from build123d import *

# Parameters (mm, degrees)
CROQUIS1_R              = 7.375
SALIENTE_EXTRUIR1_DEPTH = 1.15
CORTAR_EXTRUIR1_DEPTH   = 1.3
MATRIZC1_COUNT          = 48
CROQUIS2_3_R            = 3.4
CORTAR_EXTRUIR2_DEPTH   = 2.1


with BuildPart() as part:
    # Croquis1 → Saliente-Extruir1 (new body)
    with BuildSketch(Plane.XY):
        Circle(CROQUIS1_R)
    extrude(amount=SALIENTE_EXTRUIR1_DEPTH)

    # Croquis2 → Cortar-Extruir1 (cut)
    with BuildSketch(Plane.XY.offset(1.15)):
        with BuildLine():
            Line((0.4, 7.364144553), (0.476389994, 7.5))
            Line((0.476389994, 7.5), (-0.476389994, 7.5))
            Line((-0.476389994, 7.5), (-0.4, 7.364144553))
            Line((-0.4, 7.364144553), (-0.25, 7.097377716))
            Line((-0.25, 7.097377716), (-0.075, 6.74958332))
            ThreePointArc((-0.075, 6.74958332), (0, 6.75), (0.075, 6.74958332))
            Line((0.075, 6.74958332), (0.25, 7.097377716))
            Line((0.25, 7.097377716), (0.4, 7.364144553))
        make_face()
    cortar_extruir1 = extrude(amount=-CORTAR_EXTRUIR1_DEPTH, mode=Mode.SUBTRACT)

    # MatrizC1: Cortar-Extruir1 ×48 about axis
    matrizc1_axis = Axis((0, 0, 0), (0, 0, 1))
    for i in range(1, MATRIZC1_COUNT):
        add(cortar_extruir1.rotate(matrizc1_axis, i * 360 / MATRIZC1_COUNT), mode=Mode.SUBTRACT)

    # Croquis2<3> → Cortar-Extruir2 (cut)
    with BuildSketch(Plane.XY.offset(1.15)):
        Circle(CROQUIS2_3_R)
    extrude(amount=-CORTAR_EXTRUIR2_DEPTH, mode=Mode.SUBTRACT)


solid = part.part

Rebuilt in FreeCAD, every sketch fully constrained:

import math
import FreeCAD as App
import Part
import Sketcher
from FreeCAD import Vector
Q = App.Units.Quantity

doc = App.newDocument("Part")
params = doc.addObject("Spreadsheet::Sheet", "Params")
for row, (alias, value) in enumerate([
    ("sketch1_diameter", "14.75 mm"),
    ("pad1_length", "1.15 mm"),
    ("pocket1_length", "1.3 mm"),
    ("sketch3_diameter", "6.8 mm"),
    ("pocket2_length", "2.1 mm"),
], start=1):
    params.set(f"A{row}", alias)
    params.set(f"B{row}", "=" + value)
    params.setAlias(f"B{row}", alias)

body = doc.addObject("PartDesign::Body", "Body")

sketch1 = body.newObject("Sketcher::SketchObject", "Sketch")
sketch1.AttachmentSupport = (doc.getObject("XY_Plane"), [""])
sketch1.MapMode = "FlatFace"
sketch1.addGeometry(Part.Circle(Vector(0, 0, 0), Vector(0, 0, 1), 7), False)
sketch1.addConstraint(Sketcher.Constraint("Coincident", 0, 3, -1, 1))
sketch1.addConstraint(Sketcher.Constraint("Diameter", 0, Q("14.75 mm")))
sketch1.setExpression("Constraints[1]", "Params.sketch1_diameter")
pad1 = body.newObject("PartDesign::Pad", "Pad")
pad1.Profile = sketch1
pad1.setExpression("Length", "Params.pad1_length")

sketch2 = body.newObject("Sketcher::SketchObject", "Sketch001")
sketch2.AttachmentSupport = (doc.getObject("XY_Plane"), [""])
sketch2.MapMode = "FlatFace"
sketch2.AttachmentOffset = App.Placement(Vector(0, 0, 1.15), App.Rotation())
sketch2.addGeometry(Part.LineSegment(Vector(0.4, 7.36, 0), Vector(0.48, 7.5, 0)), False)
sketch2.addGeometry(Part.LineSegment(Vector(0.48, 7.5, 0), Vector(-0.48, 7.5, 0)), False)
sketch2.addGeometry(Part.LineSegment(Vector(-0.48, 7.5, 0), Vector(-0.4, 7.36, 0)), False)
sketch2.addGeometry(Part.LineSegment(Vector(-0.4, 7.36, 0), Vector(-0.25, 7.1, 0)), False)
sketch2.addGeometry(Part.LineSegment(Vector(-0.25, 7.1, 0), Vector(-0.07, 6.75, 0)), False)
sketch2.addGeometry(Part.ArcOfCircle(Part.Circle(Vector(0, 0, 0), Vector(0, 0, 1), 6.75), math.radians(89.36), math.radians(90.64)), False)
sketch2.addGeometry(Part.LineSegment(Vector(0.07, 6.75, 0), Vector(0.25, 7.1, 0)), False)
sketch2.addGeometry(Part.LineSegment(Vector(0.25, 7.1, 0), Vector(0.4, 7.36, 0)), False)
sketch2.addConstraint(Sketcher.Constraint("Coincident", 0, 2, 1, 1))
sketch2.addConstraint(Sketcher.Constraint("Coincident", 1, 2, 2, 1))
sketch2.addConstraint(Sketcher.Constraint("Coincident", 2, 2, 3, 1))
sketch2.addConstraint(Sketcher.Constraint("Coincident", 3, 2, 4, 1))
sketch2.addConstraint(Sketcher.Constraint("Coincident", 4, 2, 5, 2))
sketch2.addConstraint(Sketcher.Constraint("Coincident", 5, 1, 6, 1))
sketch2.addConstraint(Sketcher.Constraint("Coincident", 6, 2, 7, 1))
sketch2.addConstraint(Sketcher.Constraint("Coincident", 7, 2, 0, 1))
sketch2.addConstraint(Sketcher.Constraint("Horizontal", 1))
sketch2.addConstraint(Sketcher.Constraint("Coincident", 5, 3, -1, 1))
sketch2.addConstraint(Sketcher.Constraint("Symmetric", 3, 2, 6, 2, -2))
sketch2.addConstraint(Sketcher.Constraint("Symmetric", 2, 2, 7, 2, -2))
sketch2.addConstraint(Sketcher.Constraint("Parallel", 2, 3))
sketch2.addConstraint(Sketcher.Constraint("Parallel", 0, 7))
sketch2.addConstraint(Sketcher.Constraint("Horizontal", 4, 2, 5, 1))
sketch2.addConstraint(Sketcher.Constraint("DistanceY", -1, 1, 0, 2, Q("7.5 mm")))
sketch2.addConstraint(Sketcher.Constraint("DistanceX", 2, 2, -1, 1, Q("0.4 mm")))
sketch2.addConstraint(Sketcher.Constraint("DistanceX", 3, 2, 6, 2, Q("0.5 mm")))
sketch2.addConstraint(Sketcher.Constraint("DistanceX", 4, 2, 5, 1, Q("0.15 mm")))
sketch2.addConstraint(Sketcher.Constraint("Radius", 5, Q("6.749992 mm")))
sketch2.addConstraint(Sketcher.Constraint("DistanceX", 1, 2, 1, 1, Q("0.95278 mm")))
sketch2.addConstraint(Sketcher.Constraint("Distance", 0, Q("0.155859 mm")))
pocket1 = body.newObject("PartDesign::Pocket", "Pocket")
pocket1.Profile = sketch2
pocket1.setExpression("Length", "Params.pocket1_length")
doc.recompute()

polarpattern = body.newObject("PartDesign::PolarPattern", "PolarPattern")
polarpattern.Originals = [pocket1]
polarpattern.Axis = (doc.getObject("Z_Axis"), [""])
polarpattern.Angle = 360
polarpattern.Occurrences = 48
body.Tip = polarpattern

sketch3 = body.newObject("Sketcher::SketchObject", "Sketch002")
sketch3.AttachmentSupport = (doc.getObject("XY_Plane"), [""])
sketch3.MapMode = "FlatFace"
sketch3.AttachmentOffset = App.Placement(Vector(0, 0, 1.15), App.Rotation())
sketch3.addGeometry(Part.Circle(Vector(0, 0, 0), Vector(0, 0, 1), 3.4), False)
sketch3.addConstraint(Sketcher.Constraint("Coincident", 0, 3, -1, 1))
sketch3.addConstraint(Sketcher.Constraint("Diameter", 0, Q("6.8 mm")))
sketch3.setExpression("Constraints[1]", "Params.sketch3_diameter")
pocket2 = body.newObject("PartDesign::Pocket", "Pocket001")
pocket2.Profile = sketch3
pocket2.setExpression("Length", "Params.pocket2_length")

doc.recompute()
